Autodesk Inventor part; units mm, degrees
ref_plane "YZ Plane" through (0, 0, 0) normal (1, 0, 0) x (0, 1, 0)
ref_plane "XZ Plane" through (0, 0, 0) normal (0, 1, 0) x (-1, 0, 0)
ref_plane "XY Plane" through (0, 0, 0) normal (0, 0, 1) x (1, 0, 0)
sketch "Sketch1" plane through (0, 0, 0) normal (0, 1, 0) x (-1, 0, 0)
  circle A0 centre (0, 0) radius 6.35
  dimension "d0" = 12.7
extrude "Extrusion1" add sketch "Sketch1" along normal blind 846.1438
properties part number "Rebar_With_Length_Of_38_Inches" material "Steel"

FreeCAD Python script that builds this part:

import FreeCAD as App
import Part
import Sketcher
Q = App.Units.Quantity

doc = App.newDocument("Part")
params = doc.addObject("Spreadsheet::Sheet", "Params")
for row, (alias, value) in enumerate([
    ("sketch1_diameter", "0.5 in"),
    ("pad1_length", "846.1438 mm"),
], start=1):
    params.set(f"A{row}", alias)
    params.set(f"B{row}", "=" + value)
    params.setAlias(f"B{row}", alias)

body = doc.addObject("PartDesign::Body", "Body")

# Sketch on XZ plane
sketch1 = body.newObject("Sketcher::SketchObject", "Sketch")
sketch1.AttachmentSupport = (doc.getObject("XZ_Plane"), [""])
sketch1.MapMode = "FlatFace"
sketch1.addGeometry(Part.Circle(App.Vector(0, 0, 0), App.Vector(0, 0, 1), 6), False)
sketch1.addConstraint([
    Sketcher.Constraint("Coincident", 0, 3, -1, 1),
    Sketcher.Constraint("Diameter", 0, Q("0.5 in")),
])
sketch1.setExpression("Constraints[1]", "Params.sketch1_diameter")
pad1 = body.newObject("PartDesign::Pad", "Pad")
pad1.Profile = sketch1
pad1.setExpression("Length", "Params.pad1_length")
pad1.Reversed = True

doc.recompute()
